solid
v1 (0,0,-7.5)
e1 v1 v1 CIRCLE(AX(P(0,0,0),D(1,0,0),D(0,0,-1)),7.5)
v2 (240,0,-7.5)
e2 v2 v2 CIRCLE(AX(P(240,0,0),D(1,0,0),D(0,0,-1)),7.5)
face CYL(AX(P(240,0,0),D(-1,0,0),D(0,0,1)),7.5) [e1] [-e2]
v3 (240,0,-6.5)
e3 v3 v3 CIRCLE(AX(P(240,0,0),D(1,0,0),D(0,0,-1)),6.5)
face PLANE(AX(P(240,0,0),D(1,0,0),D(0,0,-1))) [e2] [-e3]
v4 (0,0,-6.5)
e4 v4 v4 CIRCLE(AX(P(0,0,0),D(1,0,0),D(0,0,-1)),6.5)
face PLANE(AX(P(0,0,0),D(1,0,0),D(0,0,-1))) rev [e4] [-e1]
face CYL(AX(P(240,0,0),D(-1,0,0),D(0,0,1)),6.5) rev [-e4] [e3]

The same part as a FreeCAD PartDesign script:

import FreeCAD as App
import Part
import Sketcher

V = App.Vector
Q = App.Units.Quantity

doc = App.newDocument("Part")
body = doc.addObject("PartDesign::Body", "Body")

# Sketch on YZ plane
sketch1 = doc.addObject("Sketcher::SketchObject", "Sketch")
body.addObject(sketch1)
sketch1.AttachmentSupport = (doc.YZ_Plane, [""])
sketch1.MapMode = "FlatFace"
sketch1.addGeometry([
    Part.Circle(V(0, 0, 0), V(0, 0, 1), 8),
    Part.Circle(V(0, 0, 0), V(0, 0, 1), 6),
], False)
sketch1.addConstraint([
    Sketcher.Constraint("Coincident", 0, 3, -1, 1),
    Sketcher.Constraint("Coincident", 1, 3, -1, 1),
    Sketcher.Constraint("Diameter", 0, Q("15 mm")),
    Sketcher.Constraint("Diameter", 1, Q("13 mm")),
])
pad1 = doc.addObject("PartDesign::Pad", "Pad")
body.addObject(pad1)
pad1.Profile = sketch1
pad1.Length = 240

doc.recompute()
